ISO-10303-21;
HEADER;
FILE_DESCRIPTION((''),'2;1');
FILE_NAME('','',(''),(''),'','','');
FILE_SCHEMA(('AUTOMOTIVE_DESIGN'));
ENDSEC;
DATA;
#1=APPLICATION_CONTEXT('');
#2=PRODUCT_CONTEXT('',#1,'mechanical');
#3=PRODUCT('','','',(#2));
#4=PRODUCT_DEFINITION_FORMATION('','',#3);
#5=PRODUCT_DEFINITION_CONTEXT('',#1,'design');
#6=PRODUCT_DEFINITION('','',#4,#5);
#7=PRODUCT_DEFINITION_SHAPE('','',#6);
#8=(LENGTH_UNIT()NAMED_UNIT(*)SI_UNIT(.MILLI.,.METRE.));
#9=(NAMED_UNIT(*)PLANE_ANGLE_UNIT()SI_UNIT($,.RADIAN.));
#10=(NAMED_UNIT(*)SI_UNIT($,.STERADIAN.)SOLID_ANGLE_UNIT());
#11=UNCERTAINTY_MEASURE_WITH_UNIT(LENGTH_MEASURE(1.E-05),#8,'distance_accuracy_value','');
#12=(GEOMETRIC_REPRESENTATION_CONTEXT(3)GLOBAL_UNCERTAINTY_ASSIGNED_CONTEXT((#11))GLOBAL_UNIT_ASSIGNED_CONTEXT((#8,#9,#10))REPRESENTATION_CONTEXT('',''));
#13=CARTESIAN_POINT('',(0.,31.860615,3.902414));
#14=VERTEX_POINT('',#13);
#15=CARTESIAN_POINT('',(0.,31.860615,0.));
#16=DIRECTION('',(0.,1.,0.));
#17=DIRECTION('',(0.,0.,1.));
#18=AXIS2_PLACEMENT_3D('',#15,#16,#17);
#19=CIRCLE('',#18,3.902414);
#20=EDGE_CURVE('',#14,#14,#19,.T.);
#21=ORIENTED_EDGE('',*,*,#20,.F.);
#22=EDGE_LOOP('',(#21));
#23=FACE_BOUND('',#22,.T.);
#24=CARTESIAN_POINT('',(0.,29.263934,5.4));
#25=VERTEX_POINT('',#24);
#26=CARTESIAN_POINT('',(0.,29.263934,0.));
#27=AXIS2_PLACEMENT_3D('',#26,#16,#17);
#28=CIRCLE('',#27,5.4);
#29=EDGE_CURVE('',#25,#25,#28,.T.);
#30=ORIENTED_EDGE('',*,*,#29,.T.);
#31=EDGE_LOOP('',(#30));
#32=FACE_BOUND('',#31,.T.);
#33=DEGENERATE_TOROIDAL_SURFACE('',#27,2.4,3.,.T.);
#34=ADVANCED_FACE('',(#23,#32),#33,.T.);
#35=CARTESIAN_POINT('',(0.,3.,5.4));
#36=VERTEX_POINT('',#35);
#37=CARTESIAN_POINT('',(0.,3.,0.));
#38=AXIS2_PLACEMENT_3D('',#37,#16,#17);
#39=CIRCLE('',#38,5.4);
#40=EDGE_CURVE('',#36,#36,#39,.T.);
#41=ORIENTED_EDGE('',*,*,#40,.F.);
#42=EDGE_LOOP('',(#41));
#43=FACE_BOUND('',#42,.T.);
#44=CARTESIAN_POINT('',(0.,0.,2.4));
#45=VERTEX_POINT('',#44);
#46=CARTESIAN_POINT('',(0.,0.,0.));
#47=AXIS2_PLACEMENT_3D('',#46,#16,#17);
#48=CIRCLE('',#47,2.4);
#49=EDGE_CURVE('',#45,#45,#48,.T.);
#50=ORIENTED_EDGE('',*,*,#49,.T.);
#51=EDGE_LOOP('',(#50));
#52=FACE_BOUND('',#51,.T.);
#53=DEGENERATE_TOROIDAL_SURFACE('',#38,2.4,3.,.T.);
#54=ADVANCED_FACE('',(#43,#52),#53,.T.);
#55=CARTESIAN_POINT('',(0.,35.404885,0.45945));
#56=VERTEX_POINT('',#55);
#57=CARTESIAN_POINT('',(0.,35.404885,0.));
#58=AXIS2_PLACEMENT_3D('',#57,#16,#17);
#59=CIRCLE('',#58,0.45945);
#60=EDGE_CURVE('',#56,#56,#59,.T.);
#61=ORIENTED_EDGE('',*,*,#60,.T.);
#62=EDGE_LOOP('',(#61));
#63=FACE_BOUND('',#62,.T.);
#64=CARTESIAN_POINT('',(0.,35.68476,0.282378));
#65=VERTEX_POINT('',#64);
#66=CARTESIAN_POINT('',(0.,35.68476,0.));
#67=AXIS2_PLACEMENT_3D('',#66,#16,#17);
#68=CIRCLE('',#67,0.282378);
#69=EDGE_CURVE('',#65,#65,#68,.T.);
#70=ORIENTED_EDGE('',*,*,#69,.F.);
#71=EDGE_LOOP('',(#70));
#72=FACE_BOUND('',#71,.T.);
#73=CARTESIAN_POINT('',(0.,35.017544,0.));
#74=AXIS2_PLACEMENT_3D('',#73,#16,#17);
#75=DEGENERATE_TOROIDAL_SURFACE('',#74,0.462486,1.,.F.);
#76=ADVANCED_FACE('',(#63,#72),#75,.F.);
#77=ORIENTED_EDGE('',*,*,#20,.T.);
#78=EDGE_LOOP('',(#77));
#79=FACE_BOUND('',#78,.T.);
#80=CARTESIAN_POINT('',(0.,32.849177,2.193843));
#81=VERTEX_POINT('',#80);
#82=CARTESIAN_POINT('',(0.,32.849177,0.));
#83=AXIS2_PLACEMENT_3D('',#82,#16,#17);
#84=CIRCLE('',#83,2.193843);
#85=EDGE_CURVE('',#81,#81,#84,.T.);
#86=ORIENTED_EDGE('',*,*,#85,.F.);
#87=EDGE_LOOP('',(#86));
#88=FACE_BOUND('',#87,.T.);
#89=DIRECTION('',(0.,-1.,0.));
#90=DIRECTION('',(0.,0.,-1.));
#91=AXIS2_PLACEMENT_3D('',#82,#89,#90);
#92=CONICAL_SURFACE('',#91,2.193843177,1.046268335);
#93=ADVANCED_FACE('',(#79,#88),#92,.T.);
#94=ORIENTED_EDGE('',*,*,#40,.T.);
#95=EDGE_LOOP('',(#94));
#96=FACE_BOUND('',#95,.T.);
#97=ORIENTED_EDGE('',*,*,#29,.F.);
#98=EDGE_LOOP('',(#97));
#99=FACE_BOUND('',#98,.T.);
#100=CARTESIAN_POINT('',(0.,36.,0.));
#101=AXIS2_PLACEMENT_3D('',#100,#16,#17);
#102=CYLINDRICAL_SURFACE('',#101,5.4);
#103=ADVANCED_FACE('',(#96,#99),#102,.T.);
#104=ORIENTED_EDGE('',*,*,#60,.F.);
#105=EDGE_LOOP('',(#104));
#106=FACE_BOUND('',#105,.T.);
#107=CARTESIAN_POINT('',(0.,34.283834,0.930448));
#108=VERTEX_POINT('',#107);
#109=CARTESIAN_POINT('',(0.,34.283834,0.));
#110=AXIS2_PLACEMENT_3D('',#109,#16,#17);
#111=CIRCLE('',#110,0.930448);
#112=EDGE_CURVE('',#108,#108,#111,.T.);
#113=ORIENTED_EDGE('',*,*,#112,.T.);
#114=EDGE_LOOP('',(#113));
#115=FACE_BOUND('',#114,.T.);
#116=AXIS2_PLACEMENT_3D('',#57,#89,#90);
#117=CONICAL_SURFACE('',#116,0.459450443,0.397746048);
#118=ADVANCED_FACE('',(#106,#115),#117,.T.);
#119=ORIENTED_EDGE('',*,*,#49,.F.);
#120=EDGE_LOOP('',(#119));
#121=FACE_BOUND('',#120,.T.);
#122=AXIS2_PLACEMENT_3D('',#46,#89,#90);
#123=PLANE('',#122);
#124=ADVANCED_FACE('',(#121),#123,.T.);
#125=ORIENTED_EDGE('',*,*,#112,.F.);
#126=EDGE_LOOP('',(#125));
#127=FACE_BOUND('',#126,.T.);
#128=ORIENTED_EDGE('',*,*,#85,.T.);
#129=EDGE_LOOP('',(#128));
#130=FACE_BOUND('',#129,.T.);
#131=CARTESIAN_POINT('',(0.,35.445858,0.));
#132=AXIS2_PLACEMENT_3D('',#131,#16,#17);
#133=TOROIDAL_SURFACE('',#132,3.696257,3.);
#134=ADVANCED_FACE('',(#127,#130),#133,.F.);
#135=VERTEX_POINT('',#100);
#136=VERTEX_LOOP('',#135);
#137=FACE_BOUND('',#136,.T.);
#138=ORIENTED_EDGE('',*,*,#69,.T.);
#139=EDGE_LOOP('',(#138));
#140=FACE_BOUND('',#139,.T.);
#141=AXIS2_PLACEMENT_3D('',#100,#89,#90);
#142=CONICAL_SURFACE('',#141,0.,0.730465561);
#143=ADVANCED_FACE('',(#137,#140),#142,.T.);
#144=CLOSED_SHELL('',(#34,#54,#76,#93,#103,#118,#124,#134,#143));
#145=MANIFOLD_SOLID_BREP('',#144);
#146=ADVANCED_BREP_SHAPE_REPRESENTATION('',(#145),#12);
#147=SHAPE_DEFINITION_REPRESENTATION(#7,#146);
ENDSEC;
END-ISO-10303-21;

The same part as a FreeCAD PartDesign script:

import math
import FreeCAD as App
import Part
import Sketcher

V = App.Vector

doc = App.newDocument("Part")
body = doc.addObject("PartDesign::Body", "Body")

# Sketch on XY plane
sketch1 = body.newObject("Sketcher::SketchObject", "Sketch")
sketch1.AttachmentSupport = (doc.getObject("XY_Plane"), [""])
sketch1.MapMode = "FlatFace"
sketch1.addGeometry([
    Part.LineSegment(V(-2.193843, 32.849177, 0), V(-3.902414, 31.860615, 0)),  # 0
    Part.ArcOfCircle(Part.Circle(V(-2.4, 29.263934, 0), V(0, 0, 1), 3), math.radians(120.05324), math.radians(180)),  # 1
    Part.LineSegment(V(-5.4, 29.263934, 0), V(-5.4, 3, 0)),  # 2
    Part.ArcOfCircle(Part.Circle(V(-2.4, 3, 0), V(0, 0, 1), 3), math.radians(180), math.radians(270)),  # 3
    Part.LineSegment(V(-2.4, 0, 0), V(0, 0, 0)),  # 4
    Part.LineSegment(V(0, 0, 0), V(0, 36, 0)),  # 5
    Part.LineSegment(V(0, 36, 0), V(-0.282378, 35.68476, 0)),  # 6
    Part.ArcOfCircle(Part.Circle(V(0.462486, 35.017544, 0), V(0, 0, 1), 1), math.radians(138.147406), math.radians(157.21083)),  # 7
    Part.LineSegment(V(-0.45945, 35.404885, 0), V(-0.930448, 34.283834, 0)),  # 8
    Part.ArcOfCircle(Part.Circle(V(-3.696257, 35.445858, 0), V(0, 0, 1), 3), math.radians(-59.94676), math.radians(-22.78917)),  # 9
], False)
sketch1.addConstraint([
    Sketcher.Constraint("Tangent", 0, 2, 1, 1),
    Sketcher.Constraint("Tangent", 1, 2, 2, 1),
    Sketcher.Constraint("Tangent", 2, 2, 3, 1),
    Sketcher.Constraint("Tangent", 3, 2, 4, 1),
    Sketcher.Constraint("Coincident", 4, 2, 5, 1),
    Sketcher.Constraint("Coincident", 5, 2, 6, 1),
    Sketcher.Constraint("Tangent", 6, 2, 7, 1),
    Sketcher.Constraint("Tangent", 7, 2, 8, 1),
    Sketcher.Constraint("Tangent", 8, 2, 9, 2),
    Sketcher.Constraint("Tangent", 9, 1, 0, 1),
    Sketcher.Constraint("Vertical", 2),
    Sketcher.Constraint("Horizontal", 4),
    Sketcher.Constraint("Vertical", 5),
    Sketcher.Constraint("Coincident", 4, 2, -1, 1),
    Sketcher.Constraint("Equal", 1, 3),
    Sketcher.Constraint("Equal", 3, 9),
    Sketcher.Constraint("Radius", 1, 3.0),
    Sketcher.Constraint("Radius", 7, 1.0),
    Sketcher.Constraint("DistanceY", 5, 1, 5, 2, 36.0),
    Sketcher.Constraint("DistanceX", 4, 1, 4, 2, 2.4),
    Sketcher.Constraint("DistanceX", 0, 2, 7, 3, 4.364899),
    Sketcher.Constraint("DistanceY", 2, 2, 2, 1, 26.263934),
    Sketcher.Constraint("DistanceY", -1, 1, 9, 3, 35.445858),
    Sketcher.Constraint("DistanceY", -1, 1, 6, 2, 35.68476),
    Sketcher.Constraint("DistanceX", 7, 2, -1, 1, 0.45945),
])
revolution = body.newObject("PartDesign::Revolution", "Revolution")
revolution.Profile = sketch1
revolution.ReferenceAxis = (sketch1, ["V_Axis"])
revolution.Angle = 360

doc.recompute()
